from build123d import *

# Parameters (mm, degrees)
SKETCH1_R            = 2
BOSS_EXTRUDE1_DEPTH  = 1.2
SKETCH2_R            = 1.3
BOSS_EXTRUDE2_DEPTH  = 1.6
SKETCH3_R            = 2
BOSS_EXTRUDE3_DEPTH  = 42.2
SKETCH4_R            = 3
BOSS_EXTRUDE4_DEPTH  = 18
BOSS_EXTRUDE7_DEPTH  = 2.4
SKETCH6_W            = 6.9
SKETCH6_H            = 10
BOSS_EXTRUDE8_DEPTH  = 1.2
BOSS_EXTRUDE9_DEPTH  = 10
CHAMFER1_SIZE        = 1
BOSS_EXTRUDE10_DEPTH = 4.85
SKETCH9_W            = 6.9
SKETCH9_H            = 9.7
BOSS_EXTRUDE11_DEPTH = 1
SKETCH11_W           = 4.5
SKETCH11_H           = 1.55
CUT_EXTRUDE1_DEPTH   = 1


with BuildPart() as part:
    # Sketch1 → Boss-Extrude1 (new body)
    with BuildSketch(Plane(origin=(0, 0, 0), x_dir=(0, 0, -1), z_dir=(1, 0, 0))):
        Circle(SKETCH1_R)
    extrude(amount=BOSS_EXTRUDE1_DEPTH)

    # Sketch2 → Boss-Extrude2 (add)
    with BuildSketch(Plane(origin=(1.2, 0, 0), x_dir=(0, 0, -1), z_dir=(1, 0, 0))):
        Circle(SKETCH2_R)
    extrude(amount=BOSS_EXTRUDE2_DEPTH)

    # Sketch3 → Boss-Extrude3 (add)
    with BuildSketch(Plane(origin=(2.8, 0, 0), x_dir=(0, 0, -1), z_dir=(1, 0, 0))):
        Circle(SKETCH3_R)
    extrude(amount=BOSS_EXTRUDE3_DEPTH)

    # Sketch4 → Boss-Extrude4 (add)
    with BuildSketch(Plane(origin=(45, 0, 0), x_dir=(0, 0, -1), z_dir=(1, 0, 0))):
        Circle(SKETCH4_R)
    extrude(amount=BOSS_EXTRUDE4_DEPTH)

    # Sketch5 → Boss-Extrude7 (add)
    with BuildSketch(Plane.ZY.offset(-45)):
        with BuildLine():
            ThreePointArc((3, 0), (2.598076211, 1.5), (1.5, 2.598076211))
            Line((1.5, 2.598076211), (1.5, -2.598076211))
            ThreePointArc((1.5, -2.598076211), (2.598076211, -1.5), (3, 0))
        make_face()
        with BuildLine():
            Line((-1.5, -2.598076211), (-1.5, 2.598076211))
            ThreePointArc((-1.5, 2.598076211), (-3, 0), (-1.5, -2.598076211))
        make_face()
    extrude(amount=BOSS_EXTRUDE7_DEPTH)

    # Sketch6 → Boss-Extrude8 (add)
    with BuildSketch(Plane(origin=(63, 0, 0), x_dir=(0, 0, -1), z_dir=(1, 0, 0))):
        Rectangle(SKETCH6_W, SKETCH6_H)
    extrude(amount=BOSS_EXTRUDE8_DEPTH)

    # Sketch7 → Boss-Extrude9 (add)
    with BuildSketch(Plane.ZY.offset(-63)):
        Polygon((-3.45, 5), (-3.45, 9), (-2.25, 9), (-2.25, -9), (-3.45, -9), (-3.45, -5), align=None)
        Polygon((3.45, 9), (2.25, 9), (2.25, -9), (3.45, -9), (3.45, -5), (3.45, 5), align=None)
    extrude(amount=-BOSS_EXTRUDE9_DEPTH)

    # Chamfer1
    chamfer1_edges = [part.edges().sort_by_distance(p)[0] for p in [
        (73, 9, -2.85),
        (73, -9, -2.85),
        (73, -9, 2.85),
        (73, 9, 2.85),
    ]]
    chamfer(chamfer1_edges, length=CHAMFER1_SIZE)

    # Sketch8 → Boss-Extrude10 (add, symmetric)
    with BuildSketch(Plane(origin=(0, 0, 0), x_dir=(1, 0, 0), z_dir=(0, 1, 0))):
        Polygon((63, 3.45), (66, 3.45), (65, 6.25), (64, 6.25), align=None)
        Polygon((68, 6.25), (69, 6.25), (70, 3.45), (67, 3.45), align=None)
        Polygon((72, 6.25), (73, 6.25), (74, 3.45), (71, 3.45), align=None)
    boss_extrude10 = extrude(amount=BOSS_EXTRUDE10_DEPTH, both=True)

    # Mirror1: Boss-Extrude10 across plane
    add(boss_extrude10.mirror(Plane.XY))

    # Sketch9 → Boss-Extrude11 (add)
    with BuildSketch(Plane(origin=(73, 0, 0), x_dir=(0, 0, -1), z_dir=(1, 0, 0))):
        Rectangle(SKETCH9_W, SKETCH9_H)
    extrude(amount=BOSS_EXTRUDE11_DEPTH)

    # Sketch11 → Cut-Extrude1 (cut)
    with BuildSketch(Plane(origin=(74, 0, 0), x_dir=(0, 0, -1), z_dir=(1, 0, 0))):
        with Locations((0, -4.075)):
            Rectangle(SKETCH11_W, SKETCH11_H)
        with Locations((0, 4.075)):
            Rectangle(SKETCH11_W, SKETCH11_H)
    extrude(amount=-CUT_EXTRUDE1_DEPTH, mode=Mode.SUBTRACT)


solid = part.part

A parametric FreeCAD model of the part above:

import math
import FreeCAD as App
import Part
import Sketcher


def edges_at(feature, points):
    """Names of the edges that pass closest to the given points."""
    edges = feature.Shape.Edges
    near = lambda p: min(range(len(edges)), key=lambda i: edges[i].distToShape(Part.Vertex(*p))[0])
    return sorted({f"Edge{near(p) + 1}" for p in points})

doc = App.newDocument("Part")
body = doc.addObject("PartDesign::Body", "Body")

# Sketch on YZ plane
sketch1 = doc.addObject("Sketcher::SketchObject", "Sketch")
body.addObject(sketch1)
sketch1.AttachmentSupport = (doc.YZ_Plane, [""])
sketch1.MapMode = "FlatFace"
sketch1.addGeometry(Part.Circle(App.Vector(0, 0, 0), App.Vector(0, 0, 1), 2), False)
sketch1.addConstraint(Sketcher.Constraint("Coincident", 0, 3, -1, 1))
sketch1.addConstraint(Sketcher.Constraint("Diameter", 0, 4.0))
pad1 = doc.addObject("PartDesign::Pad", "Pad")
body.addObject(pad1)
pad1.Profile = sketch1
pad1.Length = 1.2

# Sketch on YZ plane
sketch2 = doc.addObject("Sketcher::SketchObject", "Sketch001")
body.addObject(sketch2)
sketch2.AttachmentSupport = (doc.YZ_Plane, [""])
sketch2.MapMode = "FlatFace"
sketch2.AttachmentOffset = App.Placement(App.Vector(0, 0, 1.2), App.Rotation())
sketch2.addGeometry(Part.Circle(App.Vector(0, 0, 0), App.Vector(0, 0, 1), 1.3), False)
sketch2.addConstraint(Sketcher.Constraint("Coincident", 0, 3, -1, 1))
sketch2.addConstraint(Sketcher.Constraint("Diameter", 0, 2.6))
pad2 = doc.addObject("PartDesign::Pad", "Pad001")
body.addObject(pad2)
pad2.Profile = sketch2
pad2.Length = 1.6

# Sketch on YZ plane
sketch3 = doc.addObject("Sketcher::SketchObject", "Sketch002")
body.addObject(sketch3)
sketch3.AttachmentSupport = (doc.YZ_Plane, [""])
sketch3.MapMode = "FlatFace"
sketch3.AttachmentOffset = App.Placement(App.Vector(0, 0, 2.8), App.Rotation())
sketch3.addGeometry(Part.Circle(App.Vector(0, 0, 0), App.Vector(0, 0, 1), 2), False)
sketch3.addConstraint(Sketcher.Constraint("Coincident", 0, 3, -1, 1))
sketch3.addConstraint(Sketcher.Constraint("Diameter", 0, 4.0))
pad3 = doc.addObject("PartDesign::Pad", "Pad002")
body.addObject(pad3)
pad3.Profile = sketch3
pad3.Length = 42.2

# Sketch on YZ plane
sketch4 = doc.addObject("Sketcher::SketchObject", "Sketch003")
body.addObject(sketch4)
sketch4.AttachmentSupport = (doc.YZ_Plane, [""])
sketch4.MapMode = "FlatFace"
sketch4.AttachmentOffset = App.Placement(App.Vector(0, 0, 45), App.Rotation())
sketch4.addGeometry(Part.Circle(App.Vector(0, 0, 0), App.Vector(0, 0, 1), 3), False)
sketch4.addConstraint(Sketcher.Constraint("Coincident", 0, 3, -1, 1))
sketch4.addConstraint(Sketcher.Constraint("Diameter", 0, 6.0))
pad4 = doc.addObject("PartDesign::Pad", "Pad003")
body.addObject(pad4)
pad4.Profile = sketch4
pad4.Length = 18

# Sketch on YZ plane
sketch5 = doc.addObject("Sketcher::SketchObject", "Sketch004")
body.addObject(sketch5)
sketch5.AttachmentSupport = (doc.YZ_Plane, [""])
sketch5.MapMode = "FlatFace"
sketch5.AttachmentOffset = App.Placement(App.Vector(0, 0, 45), App.Rotation())
sketch5.addGeometry(Part.ArcOfCircle(Part.Circle(App.Vector(0, 0, 0), App.Vector(0, 0, 1), 3), math.radians(30), math.radians(90)), False)
sketch5.addGeometry(Part.LineSegment(App.Vector(2.6, 1.5, 0), App.Vector(-2.6, 1.5, 0)), False)
sketch5.addGeometry(Part.ArcOfCircle(Part.Circle(App.Vector(0, 0, 0), App.Vector(0, 0, 1), 3), math.radians(90), math.radians(150)), False)
sketch5.addGeometry(Part.LineSegment(App.Vector(-2.6, -1.5, 0), App.Vector(2.6, -1.5, 0)), False)
sketch5.addGeometry(Part.ArcOfCircle(Part.Circle(App.Vector(0, 0, 0), App.Vector(0, 0, 1), 3), math.radians(-150), math.radians(-30)), False)
sketch5.addConstraint(Sketcher.Constraint("Coincident", 0, 1, 1, 1))
sketch5.addConstraint(Sketcher.Constraint("Coincident", 1, 2, 2, 2))
sketch5.addConstraint(Sketcher.Constraint("Tangent", 2, 1, 0, 2))
sketch5.addConstraint(Sketcher.Constraint("Coincident", 3, 1, 4, 1))
sketch5.addConstraint(Sketcher.Constraint("Coincident", 4, 2, 3, 2))
sketch5.addConstraint(Sketcher.Constraint("Horizontal", 1))
sketch5.addConstraint(Sketcher.Constraint("Horizontal", 3))
sketch5.addConstraint(Sketcher.Constraint("Coincident", 0, 3, -1, 1))
sketch5.addConstraint(Sketcher.Constraint("Coincident", 4, 3, -1, 1))
sketch5.addConstraint(Sketcher.Constraint("Equal", 0, 2))
sketch5.addConstraint(Sketcher.Constraint("Equal", 2, 4))
sketch5.addConstraint(Sketcher.Constraint("PointOnObject", 2, 1, -2))
sketch5.addConstraint(Sketcher.Constraint("Vertical", 1, 2, 3, 1))
sketch5.addConstraint(Sketcher.Constraint("Radius", 0, 3.0))
sketch5.addConstraint(Sketcher.Constraint("DistanceY", 3, 1, 1, 2, 3.0))
pad5 = doc.addObject("PartDesign::Pad", "Pad004")
body.addObject(pad5)
pad5.Profile = sketch5
pad5.Length = 2.4
pad5.Reversed = True

# Sketch on YZ plane
sketch6 = doc.addObject("Sketcher::SketchObject", "Sketch005")
body.addObject(sketch6)
sketch6.AttachmentSupport = (doc.YZ_Plane, [""])
sketch6.MapMode = "FlatFace"
sketch6.AttachmentOffset = App.Placement(App.Vector(0, 0, 63), App.Rotation())
sketch6.addGeometry(Part.LineSegment(App.Vector(5, 3, 0), App.Vector(-5, 3, 0)), False)
sketch6.addGeometry(Part.LineSegment(App.Vector(-5, 3, 0), App.Vector(-5, -3, 0)), False)
sketch6.addGeometry(Part.LineSegment(App.Vector(-5, -3, 0), App.Vector(5, -3, 0)), False)
sketch6.addGeometry(Part.LineSegment(App.Vector(5, -3, 0), App.Vector(5, 3, 0)), False)
sketch6.addConstraint(Sketcher.Constraint("Coincident", 0, 2, 1, 1))
sketch6.addConstraint(Sketcher.Constraint("Coincident", 1, 2, 2, 1))
sketch6.addConstraint(Sketcher.Constraint("Coincident", 2, 2, 3, 1))
sketch6.addConstraint(Sketcher.Constraint("Coincident", 3, 2, 0, 1))
sketch6.addConstraint(Sketcher.Constraint("Horizontal", 0))
sketch6.addConstraint(Sketcher.Constraint("Vertical", 1))
sketch6.addConstraint(Sketcher.Constraint("Horizontal", 2))
sketch6.addConstraint(Sketcher.Constraint("Vertical", 3))
sketch6.addConstraint(Sketcher.Constraint("Symmetric", 0, 2, 2, 2, -1, 1))
sketch6.addConstraint(Sketcher.Constraint("DistanceX", 0, 2, 0, 1, 10.0))
sketch6.addConstraint(Sketcher.Constraint("DistanceY", 1, 2, 1, 1, 6.9))
pad6 = doc.addObject("PartDesign::Pad", "Pad005")
body.addObject(pad6)
pad6.Profile = sketch6
pad6.Length = 1.2

# Sketch on YZ plane
sketch7 = doc.addObject("Sketcher::SketchObject", "Sketch006")
body.addObject(sketch7)
sketch7.AttachmentSupport = (doc.YZ_Plane, [""])
sketch7.MapMode = "FlatFace"
sketch7.AttachmentOffset = App.Placement(App.Vector(0, 0, 63), App.Rotation())
sketch7.addGeometry(Part.LineSegment(App.Vector(9, -3.5, 0), App.Vector(-9, -3.5, 0)), False)
sketch7.addGeometry(Part.LineSegment(App.Vector(-9, -3.5, 0), App.Vector(-9, -2.2, 0)), False)
sketch7.addGeometry(Part.LineSegment(App.Vector(-9, -2.2, 0), App.Vector(9, -2.2, 0)), False)
sketch7.addGeometry(Part.LineSegment(App.Vector(9, -2.2, 0), App.Vector(9, -3.5, 0)), False)
sketch7.addGeometry(Part.LineSegment(App.Vector(9, 3.5, 0), App.Vector(9, 2.2, 0)), False)
sketch7.addGeometry(Part.LineSegment(App.Vector(9, 2.2, 0), App.Vector(-9, 2.2, 0)), False)
sketch7.addGeometry(Part.LineSegment(App.Vector(-9, 2.2, 0), App.Vector(-9, 3.5, 0)), False)
sketch7.addGeometry(Part.LineSegment(App.Vector(-9, 3.5, 0), App.Vector(9, 3.5, 0)), False)
sketch7.addConstraint(Sketcher.Constraint("Coincident", 0, 2, 1, 1))
sketch7.addConstraint(Sketcher.Constraint("Coincident", 1, 2, 2, 1))
sketch7.addConstraint(Sketcher.Constraint("Coincident", 2, 2, 3, 1))
sketch7.addConstraint(Sketcher.Constraint("Coincident", 3, 2, 0, 1))
sketch7.addConstraint(Sketcher.Constraint("Coincident", 4, 2, 5, 1))
sketch7.addConstraint(Sketcher.Constraint("Coincident", 5, 2, 6, 1))
sketch7.addConstraint(Sketcher.Constraint("Coincident", 6, 2, 7, 1))
sketch7.addConstraint(Sketcher.Constraint("Coincident", 7, 2, 4, 1))
sketch7.addConstraint(Sketcher.Constraint("Horizontal", 0))
sketch7.addConstraint(Sketcher.Constraint("Vertical", 1))
sketch7.addConstraint(Sketcher.Constraint("Horizontal", 2))
sketch7.addConstraint(Sketcher.Constraint("Vertical", 3))
sketch7.addConstraint(Sketcher.Constraint("Vertical", 4))
sketch7.addConstraint(Sketcher.Constraint("Horizontal", 5))
sketch7.addConstraint(Sketcher.Constraint("Vertical", 6))
sketch7.addConstraint(Sketcher.Constraint("Horizontal", 7))
sketch7.addConstraint(Sketcher.Constraint("Symmetric", 1, 2, 4, 2, -1, 1))
sketch7.addConstraint(Sketcher.Constraint("Symmetric", 3, 2, 6, 2, -1, 1))
sketch7.addConstraint(Sketcher.Constraint("Vertical", 3, 2, 4, 2))
sketch7.addConstraint(Sketcher.Constraint("DistanceX", 0, 2, 0, 1, 18.0))
sketch7.addConstraint(Sketcher.Constraint("DistanceY", 1, 1, 1, 2, 1.2))
sketch7.addConstraint(Sketcher.Constraint("DistanceY", 2, 2, 4, 2, 4.5))
pad7 = doc.addObject("PartDesign::Pad", "Pad006")
body.addObject(pad7)
pad7.Profile = sketch7
pad7.Length = 10
doc.recompute()

chamfer = doc.addObject("PartDesign::Chamfer", "Chamfer")
body.addObject(chamfer)
chamfer.Base = (pad7, edges_at(pad7, [
    (73, 9, -2.85),
    (73, -9, -2.85),
    (73, -9, 2.85),
    (73, 9, 2.85),
]))
chamfer.Size = 1

# Sketch on XZ plane
sketch8 = doc.addObject("Sketcher::SketchObject", "Sketch007")
body.addObject(sketch8)
sketch8.AttachmentSupport = (doc.XZ_Plane, [""])
sketch8.MapMode = "FlatFace"
sketch8.addGeometry(Part.LineSegment(App.Vector(63, -3.5, 0), App.Vector(66, -3.5, 0)), False)
sketch8.addGeometry(Part.LineSegment(App.Vector(66, -3.5, 0), App.Vector(65, -6.2, 0)), False)
sketch8.addGeometry(Part.LineSegment(App.Vector(65, -6.2, 0), App.Vector(64, -6.2, 0)), False)
sketch8.addGeometry(Part.LineSegment(App.Vector(64, -6.2, 0), App.Vector(63, -3.5, 0)), False)
sketch8.addGeometry(Part.LineSegment(App.Vector(69, -6.2, 0), App.Vector(68, -6.2, 0)), False)
sketch8.addGeometry(Part.LineSegment(App.Vector(68, -6.2, 0), App.Vector(67, -3.5, 0)), False)
sketch8.addGeometry(Part.LineSegment(App.Vector(67, -3.5, 0), App.Vector(70, -3.5, 0)), False)
sketch8.addGeometry(Part.LineSegment(App.Vector(70, -3.5, 0), App.Vector(69, -6.2, 0)), False)
sketch8.addGeometry(Part.LineSegment(App.Vector(73, -6.2, 0), App.Vector(72, -6.2, 0)), False)
sketch8.addGeometry(Part.LineSegment(App.Vector(72, -6.2, 0), App.Vector(71, -3.5, 0)), False)
sketch8.addGeometry(Part.LineSegment(App.Vector(71, -3.5, 0), App.Vector(74, -3.5, 0)), False)
sketch8.addGeometry(Part.LineSegment(App.Vector(74, -3.5, 0), App.Vector(73, -6.2, 0)), False)
sketch8.addConstraint(Sketcher.Constraint("Coincident", 0, 2, 1, 1))
sketch8.addConstraint(Sketcher.Constraint("Coincident", 1, 2, 2, 1))
sketch8.addConstraint(Sketcher.Constraint("Coincident", 2, 2, 3, 1))
sketch8.addConstraint(Sketcher.Constraint("Coincident", 3, 2, 0, 1))
sketch8.addConstraint(Sketcher.Constraint("Coincident", 4, 2, 5, 1))
sketch8.addConstraint(Sketcher.Constraint("Coincident", 5, 2, 6, 1))
sketch8.addConstraint(Sketcher.Constraint("Coincident", 6, 2, 7, 1))
sketch8.addConstraint(Sketcher.Constraint("Coincident", 7, 2, 4, 1))
sketch8.addConstraint(Sketcher.Constraint("Coincident", 8, 2, 9, 1))
sketch8.addConstraint(Sketcher.Constraint("Coincident", 9, 2, 10, 1))
sketch8.addConstraint(Sketcher.Constraint("Coincident", 10, 2, 11, 1))
sketch8.addConstraint(Sketcher.Constraint("Coincident", 11, 2, 8, 1))
sketch8.addConstraint(Sketcher.Constraint("Horizontal", 0))
sketch8.addConstraint(Sketcher.Constraint("Horizontal", 2))
sketch8.addConstraint(Sketcher.Constraint("Horizontal", 4))
sketch8.addConstraint(Sketcher.Constraint("Horizontal", 6))
sketch8.addConstraint(Sketcher.Constraint("Horizontal", 8))
sketch8.addConstraint(Sketcher.Constraint("Horizontal", 10))
sketch8.addConstraint(Sketcher.Constraint("Parallel", 3, 5))
sketch8.addConstraint(Sketcher.Constraint("Parallel", 1, 7))
sketch8.addConstraint(Sketcher.Constraint("Parallel", 5, 9))
sketch8.addConstraint(Sketcher.Constraint("Parallel", 7, 11))
sketch8.addConstraint(Sketcher.Constraint("Horizontal", 2, 2, 4, 2))
sketch8.addConstraint(Sketcher.Constraint("Horizontal", 3, 2, 5, 2))
sketch8.addConstraint(Sketcher.Constraint("Horizontal", 7, 2, 8, 2))
sketch8.addConstraint(Sketcher.Constraint("Horizontal", 6, 2, 9, 2))
sketch8.addConstraint(Sketcher.Constraint("Equal", 2, 4))
sketch8.addConstraint(Sketcher.Constraint("Equal", 4, 8))
sketch8.addConstraint(Sketcher.Constraint("Equal", 1, 3))
sketch8.addConstraint(Sketcher.Constraint("DistanceX", 0, 1, 0, 2, 3.0))
sketch8.addConstraint(Sketcher.Constraint("DistanceX", 2, 2, 2, 1, 1.0))
sketch8.addConstraint(Sketcher.Constraint("DistanceX", -1, 1, 0, 2, 66.0))
sketch8.addConstraint(Sketcher.Constraint("DistanceX", -1, 1, 4, 2, 68.0))
sketch8.addConstraint(Sketcher.Constraint("DistanceX", -1, 1, 8, 2, 72.0))
sketch8.addConstraint(Sketcher.Constraint("DistanceY", 1, 2, 0, 2, 2.8))
sketch8.addConstraint(Sketcher.Constraint("DistanceY", 0, 2, -1, 1, 3.45))
pad8 = doc.addObject("PartDesign::Pad", "Pad007")
body.addObject(pad8)
pad8.Profile = sketch8
pad8.Length = 9.7
pad8.Midplane = True
doc.recompute()

mirrored = doc.addObject("PartDesign::Mirrored", "Mirrored")
body.addObject(mirrored)
mirrored.Originals = [pad8]
mirrored.MirrorPlane = (doc.XY_Plane, [""])
body.Tip = mirrored

# Sketch on YZ plane
sketch9 = doc.addObject("Sketcher::SketchObject", "Sketch008")
body.addObject(sketch9)
sketch9.AttachmentSupport = (doc.YZ_Plane, [""])
sketch9.MapMode = "FlatFace"
sketch9.AttachmentOffset = App.Placement(App.Vector(0, 0, 73), App.Rotation())
sketch9.addGeometry(Part.LineSegment(App.Vector(5, 3, 0), App.Vector(-5, 3, 0)), False)
sketch9.addGeometry(Part.LineSegment(App.Vector(-5, 3, 0), App.Vector(-5, -3, 0)), False)
sketch9.addGeometry(Part.LineSegment(App.Vector(-5, -3, 0), App.Vector(5, -3, 0)), False)
sketch9.addGeometry(Part.LineSegment(App.Vector(5, -3, 0), App.Vector(5, 3, 0)), False)
sketch9.addConstraint(Sketcher.Constraint("Coincident", 0, 2, 1, 1))
sketch9.addConstraint(Sketcher.Constraint("Coincident", 1, 2, 2, 1))
sketch9.addConstraint(Sketcher.Constraint("Coincident", 2, 2, 3, 1))
sketch9.addConstraint(Sketcher.Constraint("Coincident", 3, 2, 0, 1))
sketch9.addConstraint(Sketcher.Constraint("Horizontal", 0))
sketch9.addConstraint(Sketcher.Constraint("Vertical", 1))
sketch9.addConstraint(Sketcher.Constraint("Horizontal", 2))
sketch9.addConstraint(Sketcher.Constraint("Vertical", 3))
sketch9.addConstraint(Sketcher.Constraint("Symmetric", 0, 2, 2, 2, -1, 1))
sketch9.addConstraint(Sketcher.Constraint("DistanceX", 0, 2, 0, 1, 9.7))
sketch9.addConstraint(Sketcher.Constraint("DistanceY", 1, 2, 1, 1, 6.9))
pad9 = doc.addObject("PartDesign::Pad", "Pad008")
body.addObject(pad9)
pad9.Profile = sketch9
pad9.Length = 1

# Sketch on YZ plane
sketch10 = doc.addObject("Sketcher::SketchObject", "Sketch009")
body.addObject(sketch10)
sketch10.AttachmentSupport = (doc.YZ_Plane, [""])
sketch10.MapMode = "FlatFace"
sketch10.AttachmentOffset = App.Placement(App.Vector(0, 0, 74), App.Rotation())
sketch10.addGeometry(Part.LineSegment(App.Vector(-3.3, 2.2, 0), App.Vector(-4.8, 2.2, 0)), False)
sketch10.addGeometry(Part.LineSegment(App.Vector(-4.8, 2.2, 0), App.Vector(-4.8, -2.2, 0)), False)
sketch10.addGeometry(Part.LineSegment(App.Vector(-4.8, -2.2, 0), App.Vector(-3.3, -2.2, 0)), False)
sketch10.addGeometry(Part.LineSegment(App.Vector(-3.3, -2.2, 0), App.Vector(-3.3, 2.2, 0)), False)
sketch10.addGeometry(Part.LineSegment(App.Vector(4.8, 2.2, 0), App.Vector(3.3, 2.2, 0)), False)
sketch10.addGeometry(Part.LineSegment(App.Vector(3.3, 2.2, 0), App.Vector(3.3, -2.2, 0)), False)
sketch10.addGeometry(Part.LineSegment(App.Vector(3.3, -2.2, 0), App.Vector(4.8, -2.2, 0)), False)
sketch10.addGeometry(Part.LineSegment(App.Vector(4.8, -2.2, 0), App.Vector(4.8, 2.2, 0)), False)
sketch10.addConstraint(Sketcher.Constraint("Coincident", 0, 2, 1, 1))
sketch10.addConstraint(Sketcher.Constraint("Coincident", 1, 2, 2, 1))
sketch10.addConstraint(Sketcher.Constraint("Coincident", 2, 2, 3, 1))
sketch10.addConstraint(Sketcher.Constraint("Coincident", 3, 2, 0, 1))
sketch10.addConstraint(Sketcher.Constraint("Coincident", 4, 2, 5, 1))
sketch10.addConstraint(Sketcher.Constraint("Coincident", 5, 2, 6, 1))
sketch10.addConstraint(Sketcher.Constraint("Coincident", 6, 2, 7, 1))
sketch10.addConstraint(Sketcher.Constraint("Coincident", 7, 2, 4, 1))
sketch10.addConstraint(Sketcher.Constraint("Horizontal", 0))
sketch10.addConstraint(Sketcher.Constraint("Vertical", 1))
sketch10.addConstraint(Sketcher.Constraint("Horizontal", 2))
sketch10.addConstraint(Sketcher.Constraint("Vertical", 3))
sketch10.addConstraint(Sketcher.Constraint("Horizontal", 4))
sketch10.addConstraint(Sketcher.Constraint("Vertical", 5))
sketch10.addConstraint(Sketcher.Constraint("Horizontal", 6))
sketch10.addConstraint(Sketcher.Constraint("Vertical", 7))
sketch10.addConstraint(Sketcher.Constraint("Symmetric", 2, 2, 4, 2, -1, 1))
sketch10.addConstraint(Sketcher.Constraint("Symmetric", 0, 2, 6, 2, -1, 1))
sketch10.addConstraint(Sketcher.Constraint("Horizontal", 3, 2, 4, 2))
sketch10.addConstraint(Sketcher.Constraint("DistanceY", 1, 2, 1, 1, 4.5))
sketch10.addConstraint(Sketcher.Constraint("DistanceX", 0, 2, 0, 1, 1.55))
sketch10.addConstraint(Sketcher.Constraint("DistanceX", 2, 2, -1, 1, 3.3))
pocket1 = doc.addObject("PartDesign::Pocket", "Pocket")
body.addObject(pocket1)
pocket1.Profile = sketch10
pocket1.Length = 1

doc.recompute()
